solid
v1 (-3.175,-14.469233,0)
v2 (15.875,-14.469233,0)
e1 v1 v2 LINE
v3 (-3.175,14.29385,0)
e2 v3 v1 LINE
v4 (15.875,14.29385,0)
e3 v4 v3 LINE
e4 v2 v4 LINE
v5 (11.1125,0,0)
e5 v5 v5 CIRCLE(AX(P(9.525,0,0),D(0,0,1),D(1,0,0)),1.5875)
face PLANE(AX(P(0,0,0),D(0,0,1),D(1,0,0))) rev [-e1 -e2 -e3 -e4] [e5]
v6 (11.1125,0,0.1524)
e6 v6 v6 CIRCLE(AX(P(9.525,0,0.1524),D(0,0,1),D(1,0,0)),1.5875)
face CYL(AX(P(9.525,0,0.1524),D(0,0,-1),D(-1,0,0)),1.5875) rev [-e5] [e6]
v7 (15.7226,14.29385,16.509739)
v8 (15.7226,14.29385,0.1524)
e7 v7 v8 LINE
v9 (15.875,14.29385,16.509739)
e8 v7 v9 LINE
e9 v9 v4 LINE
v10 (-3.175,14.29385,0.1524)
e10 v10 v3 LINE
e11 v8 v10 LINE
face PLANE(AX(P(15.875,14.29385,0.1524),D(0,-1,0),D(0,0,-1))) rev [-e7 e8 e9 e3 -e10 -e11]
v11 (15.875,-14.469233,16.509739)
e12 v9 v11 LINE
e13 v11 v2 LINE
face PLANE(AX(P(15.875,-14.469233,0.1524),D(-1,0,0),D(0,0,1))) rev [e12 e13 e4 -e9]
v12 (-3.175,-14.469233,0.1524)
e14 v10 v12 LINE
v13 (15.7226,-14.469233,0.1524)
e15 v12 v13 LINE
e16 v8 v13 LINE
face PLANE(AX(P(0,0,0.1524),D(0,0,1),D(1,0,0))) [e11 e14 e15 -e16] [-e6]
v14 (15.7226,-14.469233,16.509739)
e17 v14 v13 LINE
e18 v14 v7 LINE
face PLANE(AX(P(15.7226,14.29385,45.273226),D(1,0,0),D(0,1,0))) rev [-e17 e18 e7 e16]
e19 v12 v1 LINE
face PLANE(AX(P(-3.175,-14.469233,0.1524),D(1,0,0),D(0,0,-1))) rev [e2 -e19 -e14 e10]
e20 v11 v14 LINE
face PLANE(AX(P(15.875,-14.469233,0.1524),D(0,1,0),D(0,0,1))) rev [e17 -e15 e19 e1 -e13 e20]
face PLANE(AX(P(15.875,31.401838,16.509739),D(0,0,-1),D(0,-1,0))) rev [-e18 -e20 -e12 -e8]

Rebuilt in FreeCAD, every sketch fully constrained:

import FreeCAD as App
import Part
import Sketcher

V = App.Vector
Q = App.Units.Quantity


def add_polygon(sketch, points):
    """Adds a closed chain of lines whose ends are joined by coincident constraints."""
    first, n = sketch.GeometryCount, len(points)
    for a, b in zip(points, points[1:] + points[:1]):
        sketch.addGeometry(Part.LineSegment(App.Vector(*a, 0), App.Vector(*b, 0)), False)
    for i in range(n):
        sketch.addConstraint(Sketcher.Constraint("Coincident", first + i, 2, first + (i + 1) % n, 1))

doc = App.newDocument("Part")
body = doc.addObject("PartDesign::Body", "Body")

sketch1 = body.newObject("Sketcher::SketchObject", "Sketch")
sketch1.AttachmentSupport = (doc.getObject("XY_Plane"), [""])
sketch1.MapMode = "FlatFace"
add_polygon(sketch1, [(-3.175, 14.29385), (-3.175, -14.469233), (15.875, -14.469233), (15.875, 14.29385)])
sketch1.addGeometry(Part.Circle(V(9.525, 0, 0), V(0, 0, 1), 1.5875), False)
sketch1.addConstraint([
    Sketcher.Constraint("Vertical", 0),
    Sketcher.Constraint("Horizontal", 1),
    Sketcher.Constraint("Vertical", 2),
    Sketcher.Constraint("Horizontal", 3),
    Sketcher.Constraint("PointOnObject", 4, 3, -1),
    Sketcher.Constraint("Diameter", 4, Q("0.125 in")),
    Sketcher.Constraint("DistanceX", 1, 1, 1, 2, Q("0.75 in")),
    Sketcher.Constraint("DistanceX", 0, 2, 4, 3, Q("0.5 in")),
    Sketcher.Constraint("DistanceX", -1, 1, 4, 3, Q("0.375 in")),
    Sketcher.Constraint("DistanceY", 0, 2, 0, 1, Q("28.763083 mm")),
    Sketcher.Constraint("DistanceY", -1, 1, 2, 2, Q("14.29385 mm")),
])
pad1 = body.newObject("PartDesign::Pad", "Pad")
pad1.Profile = sketch1
pad1.Length = Q("0.006 in")

sketch2 = body.newObject("Sketcher::SketchObject", "Sketch001")
sketch2.AttachmentSupport = (doc.getObject("XY_Plane"), [""])
sketch2.MapMode = "FlatFace"
sketch2.AttachmentOffset = App.Placement(V(0, 0, 0.006 * 25.4), App.Rotation())
add_polygon(sketch2, [(15.7226, 14.29385), (15.7226, -14.469233), (15.875, -14.469233), (15.875, 14.29385)])
sketch2.addConstraint([
    Sketcher.Constraint("Vertical", 0),
    Sketcher.Constraint("Horizontal", 1),
    Sketcher.Constraint("Vertical", 2),
    Sketcher.Constraint("Horizontal", 3),
    Sketcher.Constraint("DistanceX", 1, 1, 1, 2, Q("0.006 in")),
    Sketcher.Constraint("DistanceX", -1, 1, 0, 2, Q("0.619 in")),
    Sketcher.Constraint("DistanceY", 0, 2, 0, 1, Q("28.763083 mm")),
    Sketcher.Constraint("DistanceY", -1, 1, 2, 2, Q("14.29385 mm")),
])
pad2 = body.newObject("PartDesign::Pad", "Pad001")
pad2.Profile = sketch2
pad2.Length = 16.357339

doc.recompute()
